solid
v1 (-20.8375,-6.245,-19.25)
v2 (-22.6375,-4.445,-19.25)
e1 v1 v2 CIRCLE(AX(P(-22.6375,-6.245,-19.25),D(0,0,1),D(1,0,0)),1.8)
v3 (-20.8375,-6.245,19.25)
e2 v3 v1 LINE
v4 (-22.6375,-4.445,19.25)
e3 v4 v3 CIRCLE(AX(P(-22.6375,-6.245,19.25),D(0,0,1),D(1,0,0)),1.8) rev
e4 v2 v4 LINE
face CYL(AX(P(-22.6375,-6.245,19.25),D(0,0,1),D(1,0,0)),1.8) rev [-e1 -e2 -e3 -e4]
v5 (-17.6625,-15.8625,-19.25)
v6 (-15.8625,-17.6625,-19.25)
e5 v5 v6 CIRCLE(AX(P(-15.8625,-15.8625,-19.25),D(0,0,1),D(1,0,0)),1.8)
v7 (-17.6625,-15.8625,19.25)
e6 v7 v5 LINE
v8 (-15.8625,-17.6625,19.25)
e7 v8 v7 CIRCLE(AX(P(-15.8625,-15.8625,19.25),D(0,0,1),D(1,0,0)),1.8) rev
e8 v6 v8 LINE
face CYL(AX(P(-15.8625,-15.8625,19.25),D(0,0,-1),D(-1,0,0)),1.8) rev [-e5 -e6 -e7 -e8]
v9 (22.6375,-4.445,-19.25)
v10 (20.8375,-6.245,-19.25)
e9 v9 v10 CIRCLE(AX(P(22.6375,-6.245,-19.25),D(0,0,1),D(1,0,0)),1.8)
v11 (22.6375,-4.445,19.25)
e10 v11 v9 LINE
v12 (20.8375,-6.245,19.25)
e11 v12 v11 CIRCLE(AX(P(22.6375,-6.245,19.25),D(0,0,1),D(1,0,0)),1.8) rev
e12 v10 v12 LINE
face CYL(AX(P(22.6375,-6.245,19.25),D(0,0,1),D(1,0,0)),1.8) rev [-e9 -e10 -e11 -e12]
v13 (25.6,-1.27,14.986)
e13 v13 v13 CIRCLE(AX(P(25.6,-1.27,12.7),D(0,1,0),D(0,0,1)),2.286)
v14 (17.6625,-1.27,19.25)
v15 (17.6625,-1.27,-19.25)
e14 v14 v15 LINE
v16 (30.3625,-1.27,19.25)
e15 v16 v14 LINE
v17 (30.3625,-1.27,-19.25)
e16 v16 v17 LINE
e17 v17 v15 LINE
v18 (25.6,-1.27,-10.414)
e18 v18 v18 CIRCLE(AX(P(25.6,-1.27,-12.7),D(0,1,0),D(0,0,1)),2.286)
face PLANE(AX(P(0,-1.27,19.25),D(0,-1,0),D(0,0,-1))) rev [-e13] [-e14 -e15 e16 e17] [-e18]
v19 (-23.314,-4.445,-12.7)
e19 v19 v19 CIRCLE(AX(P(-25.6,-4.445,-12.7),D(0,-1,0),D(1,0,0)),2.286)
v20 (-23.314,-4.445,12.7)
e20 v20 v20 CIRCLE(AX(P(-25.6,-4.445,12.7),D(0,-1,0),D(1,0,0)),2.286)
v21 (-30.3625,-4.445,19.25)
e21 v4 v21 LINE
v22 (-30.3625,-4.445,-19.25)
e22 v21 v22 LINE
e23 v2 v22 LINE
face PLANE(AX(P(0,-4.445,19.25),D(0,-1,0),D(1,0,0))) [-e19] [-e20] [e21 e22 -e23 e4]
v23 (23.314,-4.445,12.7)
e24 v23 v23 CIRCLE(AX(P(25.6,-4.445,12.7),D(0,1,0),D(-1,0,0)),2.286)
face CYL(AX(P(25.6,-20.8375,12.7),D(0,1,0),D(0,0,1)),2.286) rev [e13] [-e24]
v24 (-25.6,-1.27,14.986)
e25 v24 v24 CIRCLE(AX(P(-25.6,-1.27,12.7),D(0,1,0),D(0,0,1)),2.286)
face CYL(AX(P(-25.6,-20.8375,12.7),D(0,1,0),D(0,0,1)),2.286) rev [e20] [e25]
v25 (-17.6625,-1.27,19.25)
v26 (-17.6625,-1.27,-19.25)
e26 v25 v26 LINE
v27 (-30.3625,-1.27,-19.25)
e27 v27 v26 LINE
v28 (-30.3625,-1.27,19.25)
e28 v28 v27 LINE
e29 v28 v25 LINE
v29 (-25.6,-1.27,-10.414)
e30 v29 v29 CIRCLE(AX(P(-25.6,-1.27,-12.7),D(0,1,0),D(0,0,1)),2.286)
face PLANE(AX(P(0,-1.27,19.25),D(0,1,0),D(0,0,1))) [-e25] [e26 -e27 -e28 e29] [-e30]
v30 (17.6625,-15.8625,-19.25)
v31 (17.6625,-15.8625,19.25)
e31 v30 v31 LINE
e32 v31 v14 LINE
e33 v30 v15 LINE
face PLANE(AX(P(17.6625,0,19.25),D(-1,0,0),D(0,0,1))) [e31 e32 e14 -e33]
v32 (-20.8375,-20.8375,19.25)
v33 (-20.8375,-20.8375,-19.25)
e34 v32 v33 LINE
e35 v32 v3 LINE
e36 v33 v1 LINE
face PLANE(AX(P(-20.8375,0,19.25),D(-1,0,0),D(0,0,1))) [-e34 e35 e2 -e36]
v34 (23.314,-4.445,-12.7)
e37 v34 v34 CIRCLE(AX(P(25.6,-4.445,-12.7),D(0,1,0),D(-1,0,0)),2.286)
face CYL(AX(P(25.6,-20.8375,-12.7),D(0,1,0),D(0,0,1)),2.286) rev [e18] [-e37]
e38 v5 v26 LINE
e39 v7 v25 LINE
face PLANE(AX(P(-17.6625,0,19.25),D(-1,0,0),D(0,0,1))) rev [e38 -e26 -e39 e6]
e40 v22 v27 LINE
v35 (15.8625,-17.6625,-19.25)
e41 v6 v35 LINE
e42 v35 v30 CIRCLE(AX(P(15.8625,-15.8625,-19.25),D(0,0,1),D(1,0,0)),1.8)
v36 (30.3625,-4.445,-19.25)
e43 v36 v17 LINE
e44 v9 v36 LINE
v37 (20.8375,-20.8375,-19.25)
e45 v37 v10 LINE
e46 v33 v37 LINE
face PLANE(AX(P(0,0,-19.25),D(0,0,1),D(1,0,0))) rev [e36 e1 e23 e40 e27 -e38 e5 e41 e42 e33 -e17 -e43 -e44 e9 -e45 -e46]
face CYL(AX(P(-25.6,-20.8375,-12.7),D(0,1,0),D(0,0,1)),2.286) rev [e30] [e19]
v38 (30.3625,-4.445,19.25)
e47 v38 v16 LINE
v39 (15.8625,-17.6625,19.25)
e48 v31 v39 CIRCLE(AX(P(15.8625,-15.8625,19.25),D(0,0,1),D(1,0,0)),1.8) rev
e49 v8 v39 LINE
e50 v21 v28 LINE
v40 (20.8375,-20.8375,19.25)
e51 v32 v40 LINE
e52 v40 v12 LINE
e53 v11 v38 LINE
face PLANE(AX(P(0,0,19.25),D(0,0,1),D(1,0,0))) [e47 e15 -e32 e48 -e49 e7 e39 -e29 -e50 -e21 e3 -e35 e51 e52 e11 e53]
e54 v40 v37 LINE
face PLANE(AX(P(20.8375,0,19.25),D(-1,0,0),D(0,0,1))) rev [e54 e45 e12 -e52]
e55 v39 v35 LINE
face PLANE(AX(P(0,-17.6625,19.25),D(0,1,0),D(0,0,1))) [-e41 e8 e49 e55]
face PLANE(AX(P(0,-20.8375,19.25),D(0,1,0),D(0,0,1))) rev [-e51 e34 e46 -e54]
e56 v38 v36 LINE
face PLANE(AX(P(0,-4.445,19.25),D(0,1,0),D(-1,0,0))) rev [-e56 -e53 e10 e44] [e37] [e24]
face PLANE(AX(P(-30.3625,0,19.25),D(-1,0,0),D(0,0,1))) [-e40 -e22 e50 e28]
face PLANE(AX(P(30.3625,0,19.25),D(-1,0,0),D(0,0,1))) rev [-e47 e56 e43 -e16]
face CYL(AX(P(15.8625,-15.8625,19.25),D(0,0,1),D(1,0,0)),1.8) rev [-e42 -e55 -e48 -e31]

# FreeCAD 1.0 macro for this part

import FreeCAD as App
import Part
import Sketcher

V = App.Vector
Q = App.Units.Quantity


def edges_at(feature, points):
    """Names of the edges that pass closest to the given points."""
    edges = feature.Shape.Edges
    near = lambda p: min(range(len(edges)), key=lambda i: edges[i].distToShape(Part.Vertex(*p))[0])
    return sorted({f"Edge{near(p) + 1}" for p in points})

doc = App.newDocument("Part")
body = doc.addObject("PartDesign::Body", "Body")

# Sketch on XY plane
sketch1 = body.newObject("Sketcher::SketchObject", "Sketch")
sketch1.AttachmentSupport = (doc.getObject("XY_Plane"), [""])
sketch1.MapMode = "FlatFace"
sketch1.addGeometry([
    Part.LineSegment(V(17.7, -17.7, 0), V(-17.7, -17.7, 0)),  # 0
    Part.LineSegment(V(-17.7, -17.7, 0), V(-17.7, -1.3, 0)),  # 1
    Part.LineSegment(V(-17.7, -1.3, 0), V(-30.4, -1.3, 0)),  # 2
    Part.LineSegment(V(-30.4, -1.3, 0), V(-30.4, -4.4, 0)),  # 3
    Part.LineSegment(V(-30.4, -4.4, 0), V(-20.8, -4.4, 0)),  # 4
    Part.LineSegment(V(-20.8, -4.4, 0), V(-20.8, -20.8, 0)),  # 5
    Part.LineSegment(V(-20.8, -20.8, 0), V(20.8, -20.8, 0)),  # 6
    Part.LineSegment(V(20.8, -20.8, 0), V(20.8, -4.4, 0)),  # 7
    Part.LineSegment(V(20.8, -4.4, 0), V(30.4, -4.4, 0)),  # 8
    Part.LineSegment(V(30.4, -4.4, 0), V(30.4, -1.3, 0)),  # 9
    Part.LineSegment(V(30.4, -1.3, 0), V(17.7, -1.3, 0)),  # 10
    Part.LineSegment(V(17.7, -1.3, 0), V(17.7, -17.7, 0)),  # 11
], False)
sketch1.addConstraint([
    Sketcher.Constraint("Coincident", 0, 2, 1, 1),
    Sketcher.Constraint("Coincident", 1, 2, 2, 1),
    Sketcher.Constraint("Coincident", 2, 2, 3, 1),
    Sketcher.Constraint("Coincident", 3, 2, 4, 1),
    Sketcher.Constraint("Coincident", 4, 2, 5, 1),
    Sketcher.Constraint("Coincident", 5, 2, 6, 1),
    Sketcher.Constraint("Coincident", 6, 2, 7, 1),
    Sketcher.Constraint("Coincident", 7, 2, 8, 1),
    Sketcher.Constraint("Coincident", 8, 2, 9, 1),
    Sketcher.Constraint("Coincident", 9, 2, 10, 1),
    Sketcher.Constraint("Coincident", 10, 2, 11, 1),
    Sketcher.Constraint("Coincident", 11, 2, 0, 1),
    Sketcher.Constraint("Horizontal", 0),
    Sketcher.Constraint("Vertical", 1),
    Sketcher.Constraint("Horizontal", 2),
    Sketcher.Constraint("Vertical", 3),
    Sketcher.Constraint("Horizontal", 4),
    Sketcher.Constraint("Vertical", 5),
    Sketcher.Constraint("Horizontal", 6),
    Sketcher.Constraint("Vertical", 7),
    Sketcher.Constraint("Horizontal", 8),
    Sketcher.Constraint("Vertical", 9),
    Sketcher.Constraint("Horizontal", 10),
    Sketcher.Constraint("Vertical", 11),
    Sketcher.Constraint("Symmetric", 4, 2, 7, 2, -2),
    Sketcher.Constraint("Symmetric", 2, 2, 9, 2, -2),
    Sketcher.Constraint("Equal", 2, 10),
    Sketcher.Constraint("Equal", 1, 5),
    Sketcher.Constraint("DistanceX", 2, 2, 2, 1, Q("0.5 in")),
    Sketcher.Constraint("DistanceX", 4, 1, 4, 2, Q("0.375 in")),
    Sketcher.Constraint("DistanceY", 3, 2, 3, 1, Q("0.125 in")),
    Sketcher.Constraint("DistanceY", 1, 2, -1, 1, Q("0.05 in")),
    Sketcher.Constraint("DistanceX", 0, 2, 0, 1, 35.325),
    Sketcher.Constraint("DistanceY", 1, 1, 1, 2, 16.3925),
])
pad1 = body.newObject("PartDesign::Pad", "Pad")
pad1.Profile = sketch1
pad1.Length = 38.5
pad1.Midplane = True

# Sketch on XZ plane
sketch2 = body.newObject("Sketcher::SketchObject", "Sketch001")
sketch2.AttachmentSupport = (doc.getObject("XZ_Plane"), [""])
sketch2.MapMode = "FlatFace"
sketch2.AttachmentOffset = App.Placement(V(0, 0, 0.05 * 25.4), App.Rotation())
sketch2.addGeometry([
    Part.Circle(V(-25.6, -12.7, 0), V(0, 0, 1), 2.3),
    Part.Circle(V(-25.6, 12.7, 0), V(0, 0, 1), 2.3),
    Part.Circle(V(25.6, -12.7, 0), V(0, 0, 1), 2.3),
    Part.Circle(V(25.6, 12.7, 0), V(0, 0, 1), 2.3),
], False)
sketch2.addConstraint([
    Sketcher.Constraint("Equal", 0, 1),
    Sketcher.Constraint("Equal", 1, 2),
    Sketcher.Constraint("Equal", 2, 3),
    Sketcher.Constraint("Symmetric", 1, 3, 2, 3, -1, 1),
    Sketcher.Constraint("Symmetric", 0, 3, 3, 3, -1, 1),
    Sketcher.Constraint("Symmetric", 0, 3, 2, 3, -2),
    Sketcher.Constraint("Diameter", 0, Q("0.18 in")),
    Sketcher.Constraint("DistanceY", 0, 3, 1, 3, Q("1 in")),
    Sketcher.Constraint("DistanceX", 0, 3, -1, 1, 25.6),
])
pocket1 = body.newObject("PartDesign::Pocket", "Pocket")
pocket1.Profile = sketch2
pocket1.Type = "ThroughAll"
pocket1.Reversed = True
doc.recompute()

fillet = body.newObject("PartDesign::Fillet", "Fillet")
fillet.Base = (pocket1, edges_at(pocket1, [
    (-17.663, -17.663, 0),
    (17.663, -17.663, 0),
    (20.838, -4.445, 0),
    (-20.838, -4.445, 0),
]))
fillet.Radius = 1.8

doc.recompute()
